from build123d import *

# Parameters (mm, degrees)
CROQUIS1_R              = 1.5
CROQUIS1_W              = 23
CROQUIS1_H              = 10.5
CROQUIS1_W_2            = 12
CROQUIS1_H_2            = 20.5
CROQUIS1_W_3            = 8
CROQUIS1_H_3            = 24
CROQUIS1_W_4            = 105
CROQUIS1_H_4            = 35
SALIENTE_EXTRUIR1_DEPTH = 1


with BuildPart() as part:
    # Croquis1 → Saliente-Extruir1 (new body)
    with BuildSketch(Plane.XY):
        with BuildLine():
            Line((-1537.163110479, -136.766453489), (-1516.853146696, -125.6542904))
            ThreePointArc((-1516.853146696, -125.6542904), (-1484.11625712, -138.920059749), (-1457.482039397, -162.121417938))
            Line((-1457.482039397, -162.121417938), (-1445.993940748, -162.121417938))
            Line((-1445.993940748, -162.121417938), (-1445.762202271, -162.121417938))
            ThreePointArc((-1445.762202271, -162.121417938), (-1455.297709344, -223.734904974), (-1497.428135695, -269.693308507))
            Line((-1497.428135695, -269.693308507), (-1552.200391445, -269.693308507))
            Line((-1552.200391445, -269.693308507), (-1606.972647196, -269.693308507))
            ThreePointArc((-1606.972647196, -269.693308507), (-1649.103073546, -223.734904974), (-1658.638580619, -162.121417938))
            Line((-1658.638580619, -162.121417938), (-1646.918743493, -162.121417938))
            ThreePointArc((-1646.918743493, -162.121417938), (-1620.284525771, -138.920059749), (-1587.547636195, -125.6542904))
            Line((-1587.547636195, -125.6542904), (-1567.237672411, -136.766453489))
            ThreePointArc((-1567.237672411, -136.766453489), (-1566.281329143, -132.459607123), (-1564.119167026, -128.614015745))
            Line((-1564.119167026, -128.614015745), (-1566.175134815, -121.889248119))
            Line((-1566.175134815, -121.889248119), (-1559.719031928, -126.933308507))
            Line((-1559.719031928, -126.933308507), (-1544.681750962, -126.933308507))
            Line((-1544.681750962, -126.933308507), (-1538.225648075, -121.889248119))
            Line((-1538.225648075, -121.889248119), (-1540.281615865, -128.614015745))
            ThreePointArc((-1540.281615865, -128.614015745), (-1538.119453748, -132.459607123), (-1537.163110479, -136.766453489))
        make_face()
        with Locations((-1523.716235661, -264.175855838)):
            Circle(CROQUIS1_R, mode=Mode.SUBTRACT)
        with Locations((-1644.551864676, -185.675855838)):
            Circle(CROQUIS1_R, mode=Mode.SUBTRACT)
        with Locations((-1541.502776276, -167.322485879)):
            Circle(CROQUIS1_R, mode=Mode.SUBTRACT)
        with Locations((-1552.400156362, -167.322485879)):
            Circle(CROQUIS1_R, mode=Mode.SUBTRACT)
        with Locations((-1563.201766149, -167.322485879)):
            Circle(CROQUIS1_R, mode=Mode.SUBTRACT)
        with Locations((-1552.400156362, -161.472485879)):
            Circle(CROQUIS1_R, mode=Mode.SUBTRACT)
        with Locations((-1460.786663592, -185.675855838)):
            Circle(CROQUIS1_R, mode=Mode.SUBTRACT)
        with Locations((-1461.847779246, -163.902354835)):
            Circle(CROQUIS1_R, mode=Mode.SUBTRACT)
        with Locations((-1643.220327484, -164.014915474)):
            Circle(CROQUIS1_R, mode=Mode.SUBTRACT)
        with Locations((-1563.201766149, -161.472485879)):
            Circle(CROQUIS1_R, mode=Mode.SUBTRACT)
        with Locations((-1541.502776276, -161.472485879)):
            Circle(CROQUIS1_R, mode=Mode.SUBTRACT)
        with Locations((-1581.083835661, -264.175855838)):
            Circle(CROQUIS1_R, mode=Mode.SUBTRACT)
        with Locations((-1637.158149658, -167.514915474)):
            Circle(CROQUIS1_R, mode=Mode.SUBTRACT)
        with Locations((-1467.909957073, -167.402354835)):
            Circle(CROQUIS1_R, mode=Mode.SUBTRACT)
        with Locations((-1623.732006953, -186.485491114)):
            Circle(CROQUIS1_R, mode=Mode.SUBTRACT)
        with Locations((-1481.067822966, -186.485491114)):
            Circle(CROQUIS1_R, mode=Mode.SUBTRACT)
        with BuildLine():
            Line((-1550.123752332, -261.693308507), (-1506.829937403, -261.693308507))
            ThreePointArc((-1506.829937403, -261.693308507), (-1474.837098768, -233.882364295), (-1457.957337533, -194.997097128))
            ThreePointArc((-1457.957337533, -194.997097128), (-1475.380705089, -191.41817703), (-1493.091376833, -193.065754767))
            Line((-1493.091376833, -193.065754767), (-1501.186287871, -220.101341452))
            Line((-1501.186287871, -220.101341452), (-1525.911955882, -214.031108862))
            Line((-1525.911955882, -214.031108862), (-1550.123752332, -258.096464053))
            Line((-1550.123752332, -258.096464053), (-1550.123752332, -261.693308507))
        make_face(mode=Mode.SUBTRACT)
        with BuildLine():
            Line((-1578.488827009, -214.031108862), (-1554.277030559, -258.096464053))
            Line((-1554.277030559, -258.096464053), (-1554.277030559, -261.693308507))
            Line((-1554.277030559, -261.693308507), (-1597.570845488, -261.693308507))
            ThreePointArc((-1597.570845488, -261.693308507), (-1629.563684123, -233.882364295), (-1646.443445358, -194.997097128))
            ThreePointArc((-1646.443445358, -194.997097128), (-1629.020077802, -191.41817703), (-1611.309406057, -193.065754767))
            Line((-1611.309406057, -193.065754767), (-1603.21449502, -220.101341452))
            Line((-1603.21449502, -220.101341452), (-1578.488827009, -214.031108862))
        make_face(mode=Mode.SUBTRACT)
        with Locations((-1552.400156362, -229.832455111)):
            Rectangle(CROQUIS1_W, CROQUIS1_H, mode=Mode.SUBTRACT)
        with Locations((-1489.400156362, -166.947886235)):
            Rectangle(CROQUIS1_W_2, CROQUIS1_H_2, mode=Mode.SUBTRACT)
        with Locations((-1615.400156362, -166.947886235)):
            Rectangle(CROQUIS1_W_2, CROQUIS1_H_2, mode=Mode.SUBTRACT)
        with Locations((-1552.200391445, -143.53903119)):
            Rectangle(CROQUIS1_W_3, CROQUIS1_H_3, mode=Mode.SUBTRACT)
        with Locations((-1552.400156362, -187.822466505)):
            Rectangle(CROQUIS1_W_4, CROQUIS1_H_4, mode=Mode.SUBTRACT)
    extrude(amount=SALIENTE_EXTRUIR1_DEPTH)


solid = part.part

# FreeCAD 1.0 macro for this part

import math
import FreeCAD as App
import Part
import Sketcher

V = App.Vector
Q = App.Units.Quantity

doc = App.newDocument("Part")
params = doc.addObject("Spreadsheet::Sheet", "Params")
for row, (alias, value) in enumerate([
    ("sketch1_diameter", "3 mm"),
    ("sketch1_radius", "107.5 mm"),
    ("sketch1_width", "23 mm"),
    ("sketch1_width2", "12 mm"),
    ("sketch1_width3", "8 mm"),
    ("pad1_length", "1 mm"),
], start=1):
    params.set(f"A{row}", alias)
    params.set(f"B{row}", "=" + value)
    params.setAlias(f"B{row}", alias)

body = doc.addObject("PartDesign::Body", "Body")

# Sketch on XY plane
sketch1 = doc.addObject("Sketcher::SketchObject", "Sketch")
body.addObject(sketch1)
sketch1.AttachmentSupport = (doc.XY_Plane, [""])
sketch1.MapMode = "FlatFace"
sketch1.addGeometry([
    Part.LineSegment(V(-1516.9, -125.7, 0), V(-1537.2, -136.8, 0)),  # 0
    Part.ArcOfCircle(Part.Circle(V(-1552.2, -137.8, 0), V(0, 0, 1), 15.1), math.radians(4), math.radians(38)),  # 1
    Part.LineSegment(V(-1540.3, -128.6, 0), V(-1538.2, -121.9, 0)),  # 2
    Part.LineSegment(V(-1538.2, -121.9, 0), V(-1544.7, -126.9, 0)),  # 3
    Part.LineSegment(V(-1544.7, -126.9, 0), V(-1559.7, -126.9, 0)),  # 4
    Part.LineSegment(V(-1559.7, -126.9, 0), V(-1566.2, -121.9, 0)),  # 5
    Part.LineSegment(V(-1566.2, -121.9, 0), V(-1564.1, -128.6, 0)),  # 6
    Part.ArcOfCircle(Part.Circle(V(-1552.2, -137.8, 0), V(0, 0, 1), 15.1), math.radians(142), math.radians(176)),  # 7
    Part.LineSegment(V(-1567.2, -136.8, 0), V(-1587.5, -125.7, 0)),  # 8
    Part.ArcOfCircle(Part.Circle(V(-1564.3, -230.1, 0), V(0, 0, 1), 107), math.radians(103), math.radians(141)),  # 9
    Part.LineSegment(V(-1646.9, -162.1, 0), V(-1658.6, -162.1, 0)),  # 10
    Part.ArcOfCircle(Part.Circle(V(-1552.2, -177.2, 0), V(0, 0, 1), 107.5), math.radians(172), math.radians(239)),  # 11
    Part.LineSegment(V(-1607, -269.7, 0), V(-1497.4, -269.7, 0)),  # 12
    Part.ArcOfCircle(Part.Circle(V(-1552.2, -177.2, 0), V(0, 0, 1), 107.5), math.radians(-59), math.radians(8)),  # 13
    Part.LineSegment(V(-1445.8, -162.1, 0), V(-1457.5, -162.1, 0)),  # 14
    Part.ArcOfCircle(Part.Circle(V(-1540.1, -230.1, 0), V(0, 0, 1), 107), math.radians(39), math.radians(77)),  # 15
    Part.Circle(V(-1523.7, -264.2, 0), V(0, 0, 1), 1.5),  # 16
    Part.LineSegment(V(-1550.1, -261.7, 0), V(-1550.1, -258.1, 0)),  # 17
    Part.LineSegment(V(-1550.1, -258.1, 0), V(-1525.9, -214, 0)),  # 18
    Part.LineSegment(V(-1525.9, -214, 0), V(-1501.2, -220.1, 0)),  # 19
    Part.LineSegment(V(-1501.2, -220.1, 0), V(-1493.1, -193.1, 0)),  # 20
    Part.ArcOfCircle(Part.Circle(V(-1478.7, -251.8, 0), V(0, 0, 1), 60.4), math.radians(70), math.radians(104)),  # 21
    Part.ArcOfCircle(Part.Circle(V(-1552.2, -177.2, 0), V(0, 0, 1), 95.9), math.radians(-62), math.radians(-11)),  # 22
    Part.LineSegment(V(-1506.8, -261.7, 0), V(-1550.1, -261.7, 0)),  # 23
    Part.Circle(V(-1581.1, -264.2, 0), V(0, 0, 1), 1.5),  # 24
    Part.LineSegment(V(-1563.9, -235.1, 0), V(-1563.9, -224.6, 0)),  # 25
    Part.LineSegment(V(-1563.9, -224.6, 0), V(-1540.9, -224.6, 0)),  # 26
    Part.LineSegment(V(-1540.9, -224.6, 0), V(-1540.9, -235.1, 0)),  # 27
    Part.LineSegment(V(-1540.9, -235.1, 0), V(-1563.9, -235.1, 0)),  # 28
    Part.LineSegment(V(-1578.5, -214, 0), V(-1554.3, -258.1, 0)),  # 29
    Part.LineSegment(V(-1554.3, -258.1, 0), V(-1554.3, -261.7, 0)),  # 30
    Part.LineSegment(V(-1554.3, -261.7, 0), V(-1597.6, -261.7, 0)),  # 31
    Part.ArcOfCircle(Part.Circle(V(-1552.2, -177.2, 0), V(0, 0, 1), 95.9), math.radians(-169), math.radians(-118)),  # 32
    Part.ArcOfCircle(Part.Circle(V(-1625.7, -251.8, 0), V(0, 0, 1), 60.4), math.radians(76), math.radians(110)),  # 33
    Part.LineSegment(V(-1611.3, -193.1, 0), V(-1603.2, -220.1, 0)),  # 34
    Part.LineSegment(V(-1603.2, -220.1, 0), V(-1578.5, -214, 0)),  # 35
    Part.Circle(V(-1460.8, -185.7, 0), V(0, 0, 1), 1.5),  # 36
    Part.Circle(V(-1481.1, -186.5, 0), V(0, 0, 1), 1.5),  # 37
    Part.Circle(V(-1467.9, -167.4, 0), V(0, 0, 1), 1.5),  # 38
    Part.LineSegment(V(-1495.4, -177.2, 0), V(-1495.4, -156.7, 0)),  # 39
    Part.LineSegment(V(-1495.4, -156.7, 0), V(-1483.4, -156.7, 0)),  # 40
    Part.LineSegment(V(-1483.4, -156.7, 0), V(-1483.4, -177.2, 0)),  # 41
    Part.LineSegment(V(-1483.4, -177.2, 0), V(-1495.4, -177.2, 0)),  # 42
    Part.Circle(V(-1541.5, -167.3, 0), V(0, 0, 1), 1.5),  # 43
    Part.Circle(V(-1461.8, -163.9, 0), V(0, 0, 1), 1.5),  # 44
    Part.Circle(V(-1541.5, -161.5, 0), V(0, 0, 1), 1.5),  # 45
    Part.LineSegment(V(-1556.2, -155.5, 0), V(-1556.2, -131.5, 0)),  # 46
    Part.LineSegment(V(-1556.2, -131.5, 0), V(-1548.2, -131.5, 0)),  # 47
    Part.LineSegment(V(-1548.2, -131.5, 0), V(-1548.2, -155.5, 0)),  # 48
    Part.LineSegment(V(-1548.2, -155.5, 0), V(-1556.2, -155.5, 0)),  # 49
    Part.LineSegment(V(-1604.9, -205.3, 0), V(-1604.9, -170.3, 0)),  # 50
    Part.LineSegment(V(-1604.9, -170.3, 0), V(-1499.9, -170.3, 0)),  # 51
    Part.LineSegment(V(-1499.9, -170.3, 0), V(-1499.9, -205.3, 0)),  # 52
    Part.LineSegment(V(-1499.9, -205.3, 0), V(-1604.9, -205.3, 0)),  # 53
    Part.Circle(V(-1552.4, -167.3, 0), V(0, 0, 1), 1.5),  # 54
    Part.Circle(V(-1563.2, -167.3, 0), V(0, 0, 1), 1.5),  # 55
    Part.Circle(V(-1623.7, -186.5, 0), V(0, 0, 1), 1.5),  # 56
    Part.Circle(V(-1644.6, -185.7, 0), V(0, 0, 1), 1.5),  # 57
    Part.LineSegment(V(-1621.4, -177.2, 0), V(-1621.4, -156.7, 0)),  # 58
    Part.LineSegment(V(-1621.4, -156.7, 0), V(-1609.4, -156.7, 0)),  # 59
    Part.LineSegment(V(-1609.4, -156.7, 0), V(-1609.4, -177.2, 0)),  # 60
    Part.LineSegment(V(-1609.4, -177.2, 0), V(-1621.4, -177.2, 0)),  # 61
    Part.Circle(V(-1637.2, -167.5, 0), V(0, 0, 1), 1.5),  # 62
    Part.Circle(V(-1552.4, -161.5, 0), V(0, 0, 1), 1.5),  # 63
    Part.Circle(V(-1563.2, -161.5, 0), V(0, 0, 1), 1.5),  # 64
    Part.Circle(V(-1643.2, -164, 0), V(0, 0, 1), 1.5),  # 65
], False)
sketch1.addConstraint([
    Sketcher.Constraint("Coincident", 0, 2, 1, 1),
    Sketcher.Constraint("Coincident", 1, 2, 2, 1),
    Sketcher.Constraint("Coincident", 2, 2, 3, 1),
    Sketcher.Constraint("Coincident", 3, 2, 4, 1),
    Sketcher.Constraint("Coincident", 4, 2, 5, 1),
    Sketcher.Constraint("Coincident", 5, 2, 6, 1),
    Sketcher.Constraint("Coincident", 6, 2, 7, 1),
    Sketcher.Constraint("Coincident", 7, 2, 8, 1),
    Sketcher.Constraint("Coincident", 8, 2, 9, 1),
    Sketcher.Constraint("Coincident", 9, 2, 10, 1),
    Sketcher.Constraint("Coincident", 10, 2, 11, 1),
    Sketcher.Constraint("Coincident", 11, 2, 12, 1),
    Sketcher.Constraint("Coincident", 12, 2, 13, 1),
    Sketcher.Constraint("Coincident", 13, 2, 14, 1),
    Sketcher.Constraint("Coincident", 14, 2, 15, 1),
    Sketcher.Constraint("Coincident", 15, 2, 0, 1),
    Sketcher.Constraint("Coincident", 17, 2, 18, 1),
    Sketcher.Constraint("Coincident", 18, 2, 19, 1),
    Sketcher.Constraint("Coincident", 19, 2, 20, 1),
    Sketcher.Constraint("Coincident", 20, 2, 21, 2),
    Sketcher.Constraint("Coincident", 21, 1, 22, 2),
    Sketcher.Constraint("Coincident", 22, 1, 23, 1),
    Sketcher.Constraint("Coincident", 23, 2, 17, 1),
    Sketcher.Constraint("Coincident", 25, 2, 26, 1),
    Sketcher.Constraint("Coincident", 26, 2, 27, 1),
    Sketcher.Constraint("Coincident", 27, 2, 28, 1),
    Sketcher.Constraint("Coincident", 28, 2, 25, 1),
    Sketcher.Constraint("Coincident", 29, 2, 30, 1),
    Sketcher.Constraint("Coincident", 30, 2, 31, 1),
    Sketcher.Constraint("Coincident", 31, 2, 32, 2),
    Sketcher.Constraint("Coincident", 32, 1, 33, 2),
    Sketcher.Constraint("Coincident", 33, 1, 34, 1),
    Sketcher.Constraint("Coincident", 34, 2, 35, 1),
    Sketcher.Constraint("Coincident", 35, 2, 29, 1),
    Sketcher.Constraint("Coincident", 39, 2, 40, 1),
    Sketcher.Constraint("Coincident", 40, 2, 41, 1),
    Sketcher.Constraint("Coincident", 41, 2, 42, 1),
    Sketcher.Constraint("Coincident", 42, 2, 39, 1),
    Sketcher.Constraint("Coincident", 46, 2, 47, 1),
    Sketcher.Constraint("Coincident", 47, 2, 48, 1),
    Sketcher.Constraint("Coincident", 48, 2, 49, 1),
    Sketcher.Constraint("Coincident", 49, 2, 46, 1),
    Sketcher.Constraint("Coincident", 50, 2, 51, 1),
    Sketcher.Constraint("Coincident", 51, 2, 52, 1),
    Sketcher.Constraint("Coincident", 52, 2, 53, 1),
    Sketcher.Constraint("Coincident", 53, 2, 50, 1),
    Sketcher.Constraint("Coincident", 58, 2, 59, 1),
    Sketcher.Constraint("Coincident", 59, 2, 60, 1),
    Sketcher.Constraint("Coincident", 60, 2, 61, 1),
    Sketcher.Constraint("Coincident", 61, 2, 58, 1),
    Sketcher.Constraint("Horizontal", 4),
    Sketcher.Constraint("Horizontal", 10),
    Sketcher.Constraint("Horizontal", 12),
    Sketcher.Constraint("Horizontal", 14),
    Sketcher.Constraint("Vertical", 17),
    Sketcher.Constraint("Horizontal", 23),
    Sketcher.Constraint("Vertical", 25),
    Sketcher.Constraint("Horizontal", 26),
    Sketcher.Constraint("Vertical", 27),
    Sketcher.Constraint("Horizontal", 28),
    Sketcher.Constraint("Vertical", 30),
    Sketcher.Constraint("Horizontal", 31),
    Sketcher.Constraint("Vertical", 39),
    Sketcher.Constraint("Horizontal", 40),
    Sketcher.Constraint("Vertical", 41),
    Sketcher.Constraint("Horizontal", 42),
    Sketcher.Constraint("Vertical", 46),
    Sketcher.Constraint("Horizontal", 47),
    Sketcher.Constraint("Vertical", 48),
    Sketcher.Constraint("Horizontal", 49),
    Sketcher.Constraint("Vertical", 50),
    Sketcher.Constraint("Horizontal", 51),
    Sketcher.Constraint("Vertical", 52),
    Sketcher.Constraint("Horizontal", 53),
    Sketcher.Constraint("Vertical", 58),
    Sketcher.Constraint("Horizontal", 59),
    Sketcher.Constraint("Vertical", 60),
    Sketcher.Constraint("Horizontal", 61),
    Sketcher.Constraint("Coincident", 7, 3, 1, 3),
    Sketcher.Constraint("Coincident", 13, 3, 11, 3),
    Sketcher.Constraint("Coincident", 22, 3, 11, 3),
    Sketcher.Constraint("Coincident", 32, 3, 11, 3),
    Sketcher.Constraint("Equal", 1, 7),
    Sketcher.Constraint("Equal", 11, 13),
    Sketcher.Constraint("Equal", 9, 15),
    Sketcher.Constraint("Equal", 16, 24),
    Sketcher.Constraint("Equal", 22, 32),
    Sketcher.Constraint("Equal", 21, 33),
    Sketcher.Constraint("Equal", 24, 36),
    Sketcher.Constraint("Equal", 36, 37),
    Sketcher.Constraint("Equal", 37, 38),
    Sketcher.Constraint("Equal", 38, 43),
    Sketcher.Constraint("Equal", 43, 44),
    Sketcher.Constraint("Equal", 44, 45),
    Sketcher.Constraint("Equal", 45, 54),
    Sketcher.Constraint("Equal", 54, 55),
    Sketcher.Constraint("Equal", 55, 56),
    Sketcher.Constraint("Equal", 56, 57),
    Sketcher.Constraint("Equal", 57, 62),
    Sketcher.Constraint("Equal", 62, 63),
    Sketcher.Constraint("Equal", 63, 64),
    Sketcher.Constraint("Equal", 64, 65),
    Sketcher.Constraint("Horizontal", 9, 3, 15, 3),
    Sketcher.Constraint("Horizontal", 16, 3, 24, 3),
    Sketcher.Constraint("Horizontal", 21, 3, 33, 3),
    Sketcher.Constraint("Horizontal", 43, 3, 54, 3),
    Sketcher.Constraint("Horizontal", 54, 3, 55, 3),
    Sketcher.Constraint("Horizontal", 37, 3, 56, 3),
    Sketcher.Constraint("Horizontal", 36, 3, 57, 3),
    Sketcher.Constraint("Horizontal", 45, 3, 63, 3),
    Sketcher.Constraint("Horizontal", 63, 3, 64, 3),
    Sketcher.Constraint("Horizontal", 2, 2, 5, 2),
    Sketcher.Constraint("Horizontal", 1, 2, 6, 2),
    Sketcher.Constraint("Horizontal", 0, 2, 7, 2),
    Sketcher.Constraint("Horizontal", 10, 2, 13, 2),
    Sketcher.Constraint("Horizontal", 8, 2, 15, 2),
    Sketcher.Constraint("Horizontal", 17, 2, 29, 2),
    Sketcher.Constraint("Horizontal", 23, 2, 30, 2),
    Sketcher.Constraint("Horizontal", 21, 1, 32, 1),
    Sketcher.Constraint("Horizontal", 20, 2, 33, 1),
    Sketcher.Constraint("Horizontal", 19, 2, 34, 2),
    Sketcher.Constraint("Horizontal", 18, 2, 35, 2),
    Sketcher.Constraint("Horizontal", 40, 2, 58, 2),
    Sketcher.Constraint("Horizontal", 42, 2, 60, 2),
    Sketcher.Constraint("Vertical", 7, 3, 11, 3),
    Sketcher.Constraint("Vertical", 43, 3, 45, 3),
    Sketcher.Constraint("Vertical", 54, 3, 63, 3),
    Sketcher.Constraint("Vertical", 55, 3, 64, 3),
    Sketcher.Constraint("Equal", 10, 14),
    Sketcher.Constraint("Equal", 23, 31),
    Sketcher.Constraint("Equal", 42, 59),
    Sketcher.Constraint("Equal", 3, 5),
    Sketcher.Constraint("Equal", 2, 6),
    Sketcher.Constraint("Equal", 18, 29),
    Sketcher.Constraint("Equal", 20, 34),
    Sketcher.Constraint("Diameter", 16, Q("3 mm")),
    Sketcher.Constraint("Radius", 11, Q("107.5 mm")),
    Sketcher.Constraint("DistanceX", 26, 1, 26, 2, Q("23 mm")),
    Sketcher.Constraint("DistanceX", 40, 1, 40, 2, Q("12 mm")),
    Sketcher.Constraint("DistanceX", 47, 1, 47, 2, Q("8 mm")),
    Sketcher.Constraint("DistanceX", 51, 1, 51, 2, Q("105 mm")),
    Sketcher.Constraint("DistanceY", 46, 1, 46, 2, Q("24 mm")),
    Sketcher.Constraint("DistanceY", 50, 1, 50, 2, Q("35 mm")),
    Sketcher.Constraint("Angle", 2, Q("73 deg")),
    Sketcher.Constraint("Angle", 3, Q("-142 deg")),
    Sketcher.Constraint("Radius", 22, Q("95.91 mm")),
    Sketcher.Constraint("DistanceY", 25, 1, 25, 2, Q("10.5 mm")),
    Sketcher.Constraint("DistanceY", 39, 1, 39, 2, Q("20.5 mm")),
    Sketcher.Constraint("Radius", 21, Q("60.44305 mm")),
    Sketcher.Constraint("Radius", 1, Q("15.075976 mm")),
    Sketcher.Constraint("Radius", 9, Q("107.004385 mm")),
    Sketcher.Constraint("DistanceX", 4, 2, 4, 1, Q("15.037281 mm")),
    Sketcher.Constraint("DistanceX", 12, 1, 12, 2, Q("109.544512 mm")),
    Sketcher.Constraint("Distance", 0, Q("23.15113 mm")),
    Sketcher.Constraint("Distance", 18, Q("50.278888 mm")),
    Sketcher.Constraint("DistanceX", 10, 2, 10, 1, Q("11.719837 mm")),
    Sketcher.Constraint("DistanceX", 23, 2, 23, 1, Q("43.293815 mm")),
    Sketcher.Constraint("DistanceY", 17, 1, 17, 2, Q("3.596844 mm")),
    Sketcher.Constraint("DistanceX", 1, 3, -1, 1, Q("1552.200391 mm")),
    Sketcher.Constraint("DistanceY", 9, 3, -1, 1, Q("230.098458 mm")),
    Sketcher.Constraint("DistanceY", 11, 3, -1, 1, Q("177.193309 mm")),
    Sketcher.Constraint("DistanceX", 15, 3, -1, 1, Q("1540.120169 mm")),
    Sketcher.Constraint("DistanceY", 21, 3, -1, 1, Q("251.77011 mm")),
    Sketcher.Constraint("DistanceX", 33, 3, -1, 1, Q("1625.70249 mm")),
    Sketcher.Constraint("DistanceY", 37, 3, -1, 1, Q("186.485491 mm")),
    Sketcher.Constraint("DistanceX", 44, 3, -1, 1, Q("1461.847779 mm")),
    Sketcher.Constraint("DistanceX", 62, 3, -1, 1, Q("1637.15815 mm")),
    Sketcher.Constraint("DistanceX", 0, 2, -1, 1, Q("1537.16311 mm")),
    Sketcher.Constraint("DistanceX", 2, 2, -1, 1, Q("1538.225648 mm")),
    Sketcher.Constraint("DistanceY", 2, 2, -1, 1, Q("121.889248 mm")),
    Sketcher.Constraint("DistanceY", 8, 2, -1, 1, Q("125.65429 mm")),
    Sketcher.Constraint("DistanceY", 18, 2, -1, 1, Q("214.031109 mm")),
    Sketcher.Constraint("DistanceY", 19, 2, -1, 1, Q("220.101341 mm")),
    Sketcher.Constraint("DistanceY", 22, 1, -1, 1, Q("261.693309 mm")),
    Sketcher.Constraint("DistanceX", 46, 2, -1, 1, Q("1556.200391 mm")),
    Sketcher.Constraint("DistanceY", 46, 2, -1, 1, Q("131.539031 mm")),
    Sketcher.Constraint("Distance", 19, Q("25.459898 mm")),
    Sketcher.Constraint("Distance", 20, Q("28.221455 mm")),
    Sketcher.Constraint("DistanceX", 16, 3, -1, 1, Q("1523.716236 mm")),
    Sketcher.Constraint("DistanceY", 16, 3, -1, 1, Q("264.175856 mm")),
    Sketcher.Constraint("DistanceX", 24, 3, -1, 1, Q("1581.083836 mm")),
    Sketcher.Constraint("DistanceX", 36, 3, -1, 1, Q("1460.786664 mm")),
    Sketcher.Constraint("DistanceY", 36, 3, -1, 1, Q("185.675856 mm")),
    Sketcher.Constraint("DistanceX", 37, 3, -1, 1, Q("1481.067823 mm")),
    Sketcher.Constraint("DistanceX", 38, 3, -1, 1, Q("1467.909957 mm")),
    Sketcher.Constraint("DistanceY", 38, 3, -1, 1, Q("167.402355 mm")),
    Sketcher.Constraint("DistanceX", 43, 3, -1, 1, Q("1541.502776 mm")),
    Sketcher.Constraint("DistanceY", 43, 3, -1, 1, Q("167.322486 mm")),
    Sketcher.Constraint("DistanceY", 44, 3, -1, 1, Q("163.902355 mm")),
    Sketcher.Constraint("DistanceY", 45, 3, -1, 1, Q("161.472486 mm")),
    Sketcher.Constraint("DistanceX", 54, 3, -1, 1, Q("1552.400156 mm")),
    Sketcher.Constraint("DistanceX", 55, 3, -1, 1, Q("1563.201766 mm")),
    Sketcher.Constraint("DistanceX", 56, 3, -1, 1, Q("1623.732007 mm")),
    Sketcher.Constraint("DistanceX", 57, 3, -1, 1, Q("1644.551865 mm")),
    Sketcher.Constraint("DistanceY", 62, 3, -1, 1, Q("167.514915 mm")),
    Sketcher.Constraint("DistanceX", 65, 3, -1, 1, Q("1643.220327 mm")),
    Sketcher.Constraint("DistanceY", 65, 3, -1, 1, Q("164.014915 mm")),
    Sketcher.Constraint("DistanceX", 25, 2, -1, 1, Q("1563.900156 mm")),
    Sketcher.Constraint("DistanceY", 25, 2, -1, 1, Q("224.582455 mm")),
    Sketcher.Constraint("DistanceX", 39, 2, -1, 1, Q("1495.400156 mm")),
    Sketcher.Constraint("DistanceY", 39, 2, -1, 1, Q("156.697886 mm")),
    Sketcher.Constraint("DistanceX", 50, 2, -1, 1, Q("1604.900156 mm")),
    Sketcher.Constraint("DistanceY", 50, 2, -1, 1, Q("170.322467 mm")),
    Sketcher.Constraint("DistanceX", 58, 2, -1, 1, Q("1621.400156 mm")),
])
sketch1.setExpression("Constraints[135]", "Params.sketch1_diameter")
sketch1.setExpression("Constraints[136]", "Params.sketch1_radius")
sketch1.setExpression("Constraints[137]", "Params.sketch1_width")
sketch1.setExpression("Constraints[138]", "Params.sketch1_width2")
sketch1.setExpression("Constraints[139]", "Params.sketch1_width3")
pad1 = doc.addObject("PartDesign::Pad", "Pad")
body.addObject(pad1)
pad1.Profile = sketch1
pad1.setExpression("Length", "Params.pad1_length")

doc.recompute()
